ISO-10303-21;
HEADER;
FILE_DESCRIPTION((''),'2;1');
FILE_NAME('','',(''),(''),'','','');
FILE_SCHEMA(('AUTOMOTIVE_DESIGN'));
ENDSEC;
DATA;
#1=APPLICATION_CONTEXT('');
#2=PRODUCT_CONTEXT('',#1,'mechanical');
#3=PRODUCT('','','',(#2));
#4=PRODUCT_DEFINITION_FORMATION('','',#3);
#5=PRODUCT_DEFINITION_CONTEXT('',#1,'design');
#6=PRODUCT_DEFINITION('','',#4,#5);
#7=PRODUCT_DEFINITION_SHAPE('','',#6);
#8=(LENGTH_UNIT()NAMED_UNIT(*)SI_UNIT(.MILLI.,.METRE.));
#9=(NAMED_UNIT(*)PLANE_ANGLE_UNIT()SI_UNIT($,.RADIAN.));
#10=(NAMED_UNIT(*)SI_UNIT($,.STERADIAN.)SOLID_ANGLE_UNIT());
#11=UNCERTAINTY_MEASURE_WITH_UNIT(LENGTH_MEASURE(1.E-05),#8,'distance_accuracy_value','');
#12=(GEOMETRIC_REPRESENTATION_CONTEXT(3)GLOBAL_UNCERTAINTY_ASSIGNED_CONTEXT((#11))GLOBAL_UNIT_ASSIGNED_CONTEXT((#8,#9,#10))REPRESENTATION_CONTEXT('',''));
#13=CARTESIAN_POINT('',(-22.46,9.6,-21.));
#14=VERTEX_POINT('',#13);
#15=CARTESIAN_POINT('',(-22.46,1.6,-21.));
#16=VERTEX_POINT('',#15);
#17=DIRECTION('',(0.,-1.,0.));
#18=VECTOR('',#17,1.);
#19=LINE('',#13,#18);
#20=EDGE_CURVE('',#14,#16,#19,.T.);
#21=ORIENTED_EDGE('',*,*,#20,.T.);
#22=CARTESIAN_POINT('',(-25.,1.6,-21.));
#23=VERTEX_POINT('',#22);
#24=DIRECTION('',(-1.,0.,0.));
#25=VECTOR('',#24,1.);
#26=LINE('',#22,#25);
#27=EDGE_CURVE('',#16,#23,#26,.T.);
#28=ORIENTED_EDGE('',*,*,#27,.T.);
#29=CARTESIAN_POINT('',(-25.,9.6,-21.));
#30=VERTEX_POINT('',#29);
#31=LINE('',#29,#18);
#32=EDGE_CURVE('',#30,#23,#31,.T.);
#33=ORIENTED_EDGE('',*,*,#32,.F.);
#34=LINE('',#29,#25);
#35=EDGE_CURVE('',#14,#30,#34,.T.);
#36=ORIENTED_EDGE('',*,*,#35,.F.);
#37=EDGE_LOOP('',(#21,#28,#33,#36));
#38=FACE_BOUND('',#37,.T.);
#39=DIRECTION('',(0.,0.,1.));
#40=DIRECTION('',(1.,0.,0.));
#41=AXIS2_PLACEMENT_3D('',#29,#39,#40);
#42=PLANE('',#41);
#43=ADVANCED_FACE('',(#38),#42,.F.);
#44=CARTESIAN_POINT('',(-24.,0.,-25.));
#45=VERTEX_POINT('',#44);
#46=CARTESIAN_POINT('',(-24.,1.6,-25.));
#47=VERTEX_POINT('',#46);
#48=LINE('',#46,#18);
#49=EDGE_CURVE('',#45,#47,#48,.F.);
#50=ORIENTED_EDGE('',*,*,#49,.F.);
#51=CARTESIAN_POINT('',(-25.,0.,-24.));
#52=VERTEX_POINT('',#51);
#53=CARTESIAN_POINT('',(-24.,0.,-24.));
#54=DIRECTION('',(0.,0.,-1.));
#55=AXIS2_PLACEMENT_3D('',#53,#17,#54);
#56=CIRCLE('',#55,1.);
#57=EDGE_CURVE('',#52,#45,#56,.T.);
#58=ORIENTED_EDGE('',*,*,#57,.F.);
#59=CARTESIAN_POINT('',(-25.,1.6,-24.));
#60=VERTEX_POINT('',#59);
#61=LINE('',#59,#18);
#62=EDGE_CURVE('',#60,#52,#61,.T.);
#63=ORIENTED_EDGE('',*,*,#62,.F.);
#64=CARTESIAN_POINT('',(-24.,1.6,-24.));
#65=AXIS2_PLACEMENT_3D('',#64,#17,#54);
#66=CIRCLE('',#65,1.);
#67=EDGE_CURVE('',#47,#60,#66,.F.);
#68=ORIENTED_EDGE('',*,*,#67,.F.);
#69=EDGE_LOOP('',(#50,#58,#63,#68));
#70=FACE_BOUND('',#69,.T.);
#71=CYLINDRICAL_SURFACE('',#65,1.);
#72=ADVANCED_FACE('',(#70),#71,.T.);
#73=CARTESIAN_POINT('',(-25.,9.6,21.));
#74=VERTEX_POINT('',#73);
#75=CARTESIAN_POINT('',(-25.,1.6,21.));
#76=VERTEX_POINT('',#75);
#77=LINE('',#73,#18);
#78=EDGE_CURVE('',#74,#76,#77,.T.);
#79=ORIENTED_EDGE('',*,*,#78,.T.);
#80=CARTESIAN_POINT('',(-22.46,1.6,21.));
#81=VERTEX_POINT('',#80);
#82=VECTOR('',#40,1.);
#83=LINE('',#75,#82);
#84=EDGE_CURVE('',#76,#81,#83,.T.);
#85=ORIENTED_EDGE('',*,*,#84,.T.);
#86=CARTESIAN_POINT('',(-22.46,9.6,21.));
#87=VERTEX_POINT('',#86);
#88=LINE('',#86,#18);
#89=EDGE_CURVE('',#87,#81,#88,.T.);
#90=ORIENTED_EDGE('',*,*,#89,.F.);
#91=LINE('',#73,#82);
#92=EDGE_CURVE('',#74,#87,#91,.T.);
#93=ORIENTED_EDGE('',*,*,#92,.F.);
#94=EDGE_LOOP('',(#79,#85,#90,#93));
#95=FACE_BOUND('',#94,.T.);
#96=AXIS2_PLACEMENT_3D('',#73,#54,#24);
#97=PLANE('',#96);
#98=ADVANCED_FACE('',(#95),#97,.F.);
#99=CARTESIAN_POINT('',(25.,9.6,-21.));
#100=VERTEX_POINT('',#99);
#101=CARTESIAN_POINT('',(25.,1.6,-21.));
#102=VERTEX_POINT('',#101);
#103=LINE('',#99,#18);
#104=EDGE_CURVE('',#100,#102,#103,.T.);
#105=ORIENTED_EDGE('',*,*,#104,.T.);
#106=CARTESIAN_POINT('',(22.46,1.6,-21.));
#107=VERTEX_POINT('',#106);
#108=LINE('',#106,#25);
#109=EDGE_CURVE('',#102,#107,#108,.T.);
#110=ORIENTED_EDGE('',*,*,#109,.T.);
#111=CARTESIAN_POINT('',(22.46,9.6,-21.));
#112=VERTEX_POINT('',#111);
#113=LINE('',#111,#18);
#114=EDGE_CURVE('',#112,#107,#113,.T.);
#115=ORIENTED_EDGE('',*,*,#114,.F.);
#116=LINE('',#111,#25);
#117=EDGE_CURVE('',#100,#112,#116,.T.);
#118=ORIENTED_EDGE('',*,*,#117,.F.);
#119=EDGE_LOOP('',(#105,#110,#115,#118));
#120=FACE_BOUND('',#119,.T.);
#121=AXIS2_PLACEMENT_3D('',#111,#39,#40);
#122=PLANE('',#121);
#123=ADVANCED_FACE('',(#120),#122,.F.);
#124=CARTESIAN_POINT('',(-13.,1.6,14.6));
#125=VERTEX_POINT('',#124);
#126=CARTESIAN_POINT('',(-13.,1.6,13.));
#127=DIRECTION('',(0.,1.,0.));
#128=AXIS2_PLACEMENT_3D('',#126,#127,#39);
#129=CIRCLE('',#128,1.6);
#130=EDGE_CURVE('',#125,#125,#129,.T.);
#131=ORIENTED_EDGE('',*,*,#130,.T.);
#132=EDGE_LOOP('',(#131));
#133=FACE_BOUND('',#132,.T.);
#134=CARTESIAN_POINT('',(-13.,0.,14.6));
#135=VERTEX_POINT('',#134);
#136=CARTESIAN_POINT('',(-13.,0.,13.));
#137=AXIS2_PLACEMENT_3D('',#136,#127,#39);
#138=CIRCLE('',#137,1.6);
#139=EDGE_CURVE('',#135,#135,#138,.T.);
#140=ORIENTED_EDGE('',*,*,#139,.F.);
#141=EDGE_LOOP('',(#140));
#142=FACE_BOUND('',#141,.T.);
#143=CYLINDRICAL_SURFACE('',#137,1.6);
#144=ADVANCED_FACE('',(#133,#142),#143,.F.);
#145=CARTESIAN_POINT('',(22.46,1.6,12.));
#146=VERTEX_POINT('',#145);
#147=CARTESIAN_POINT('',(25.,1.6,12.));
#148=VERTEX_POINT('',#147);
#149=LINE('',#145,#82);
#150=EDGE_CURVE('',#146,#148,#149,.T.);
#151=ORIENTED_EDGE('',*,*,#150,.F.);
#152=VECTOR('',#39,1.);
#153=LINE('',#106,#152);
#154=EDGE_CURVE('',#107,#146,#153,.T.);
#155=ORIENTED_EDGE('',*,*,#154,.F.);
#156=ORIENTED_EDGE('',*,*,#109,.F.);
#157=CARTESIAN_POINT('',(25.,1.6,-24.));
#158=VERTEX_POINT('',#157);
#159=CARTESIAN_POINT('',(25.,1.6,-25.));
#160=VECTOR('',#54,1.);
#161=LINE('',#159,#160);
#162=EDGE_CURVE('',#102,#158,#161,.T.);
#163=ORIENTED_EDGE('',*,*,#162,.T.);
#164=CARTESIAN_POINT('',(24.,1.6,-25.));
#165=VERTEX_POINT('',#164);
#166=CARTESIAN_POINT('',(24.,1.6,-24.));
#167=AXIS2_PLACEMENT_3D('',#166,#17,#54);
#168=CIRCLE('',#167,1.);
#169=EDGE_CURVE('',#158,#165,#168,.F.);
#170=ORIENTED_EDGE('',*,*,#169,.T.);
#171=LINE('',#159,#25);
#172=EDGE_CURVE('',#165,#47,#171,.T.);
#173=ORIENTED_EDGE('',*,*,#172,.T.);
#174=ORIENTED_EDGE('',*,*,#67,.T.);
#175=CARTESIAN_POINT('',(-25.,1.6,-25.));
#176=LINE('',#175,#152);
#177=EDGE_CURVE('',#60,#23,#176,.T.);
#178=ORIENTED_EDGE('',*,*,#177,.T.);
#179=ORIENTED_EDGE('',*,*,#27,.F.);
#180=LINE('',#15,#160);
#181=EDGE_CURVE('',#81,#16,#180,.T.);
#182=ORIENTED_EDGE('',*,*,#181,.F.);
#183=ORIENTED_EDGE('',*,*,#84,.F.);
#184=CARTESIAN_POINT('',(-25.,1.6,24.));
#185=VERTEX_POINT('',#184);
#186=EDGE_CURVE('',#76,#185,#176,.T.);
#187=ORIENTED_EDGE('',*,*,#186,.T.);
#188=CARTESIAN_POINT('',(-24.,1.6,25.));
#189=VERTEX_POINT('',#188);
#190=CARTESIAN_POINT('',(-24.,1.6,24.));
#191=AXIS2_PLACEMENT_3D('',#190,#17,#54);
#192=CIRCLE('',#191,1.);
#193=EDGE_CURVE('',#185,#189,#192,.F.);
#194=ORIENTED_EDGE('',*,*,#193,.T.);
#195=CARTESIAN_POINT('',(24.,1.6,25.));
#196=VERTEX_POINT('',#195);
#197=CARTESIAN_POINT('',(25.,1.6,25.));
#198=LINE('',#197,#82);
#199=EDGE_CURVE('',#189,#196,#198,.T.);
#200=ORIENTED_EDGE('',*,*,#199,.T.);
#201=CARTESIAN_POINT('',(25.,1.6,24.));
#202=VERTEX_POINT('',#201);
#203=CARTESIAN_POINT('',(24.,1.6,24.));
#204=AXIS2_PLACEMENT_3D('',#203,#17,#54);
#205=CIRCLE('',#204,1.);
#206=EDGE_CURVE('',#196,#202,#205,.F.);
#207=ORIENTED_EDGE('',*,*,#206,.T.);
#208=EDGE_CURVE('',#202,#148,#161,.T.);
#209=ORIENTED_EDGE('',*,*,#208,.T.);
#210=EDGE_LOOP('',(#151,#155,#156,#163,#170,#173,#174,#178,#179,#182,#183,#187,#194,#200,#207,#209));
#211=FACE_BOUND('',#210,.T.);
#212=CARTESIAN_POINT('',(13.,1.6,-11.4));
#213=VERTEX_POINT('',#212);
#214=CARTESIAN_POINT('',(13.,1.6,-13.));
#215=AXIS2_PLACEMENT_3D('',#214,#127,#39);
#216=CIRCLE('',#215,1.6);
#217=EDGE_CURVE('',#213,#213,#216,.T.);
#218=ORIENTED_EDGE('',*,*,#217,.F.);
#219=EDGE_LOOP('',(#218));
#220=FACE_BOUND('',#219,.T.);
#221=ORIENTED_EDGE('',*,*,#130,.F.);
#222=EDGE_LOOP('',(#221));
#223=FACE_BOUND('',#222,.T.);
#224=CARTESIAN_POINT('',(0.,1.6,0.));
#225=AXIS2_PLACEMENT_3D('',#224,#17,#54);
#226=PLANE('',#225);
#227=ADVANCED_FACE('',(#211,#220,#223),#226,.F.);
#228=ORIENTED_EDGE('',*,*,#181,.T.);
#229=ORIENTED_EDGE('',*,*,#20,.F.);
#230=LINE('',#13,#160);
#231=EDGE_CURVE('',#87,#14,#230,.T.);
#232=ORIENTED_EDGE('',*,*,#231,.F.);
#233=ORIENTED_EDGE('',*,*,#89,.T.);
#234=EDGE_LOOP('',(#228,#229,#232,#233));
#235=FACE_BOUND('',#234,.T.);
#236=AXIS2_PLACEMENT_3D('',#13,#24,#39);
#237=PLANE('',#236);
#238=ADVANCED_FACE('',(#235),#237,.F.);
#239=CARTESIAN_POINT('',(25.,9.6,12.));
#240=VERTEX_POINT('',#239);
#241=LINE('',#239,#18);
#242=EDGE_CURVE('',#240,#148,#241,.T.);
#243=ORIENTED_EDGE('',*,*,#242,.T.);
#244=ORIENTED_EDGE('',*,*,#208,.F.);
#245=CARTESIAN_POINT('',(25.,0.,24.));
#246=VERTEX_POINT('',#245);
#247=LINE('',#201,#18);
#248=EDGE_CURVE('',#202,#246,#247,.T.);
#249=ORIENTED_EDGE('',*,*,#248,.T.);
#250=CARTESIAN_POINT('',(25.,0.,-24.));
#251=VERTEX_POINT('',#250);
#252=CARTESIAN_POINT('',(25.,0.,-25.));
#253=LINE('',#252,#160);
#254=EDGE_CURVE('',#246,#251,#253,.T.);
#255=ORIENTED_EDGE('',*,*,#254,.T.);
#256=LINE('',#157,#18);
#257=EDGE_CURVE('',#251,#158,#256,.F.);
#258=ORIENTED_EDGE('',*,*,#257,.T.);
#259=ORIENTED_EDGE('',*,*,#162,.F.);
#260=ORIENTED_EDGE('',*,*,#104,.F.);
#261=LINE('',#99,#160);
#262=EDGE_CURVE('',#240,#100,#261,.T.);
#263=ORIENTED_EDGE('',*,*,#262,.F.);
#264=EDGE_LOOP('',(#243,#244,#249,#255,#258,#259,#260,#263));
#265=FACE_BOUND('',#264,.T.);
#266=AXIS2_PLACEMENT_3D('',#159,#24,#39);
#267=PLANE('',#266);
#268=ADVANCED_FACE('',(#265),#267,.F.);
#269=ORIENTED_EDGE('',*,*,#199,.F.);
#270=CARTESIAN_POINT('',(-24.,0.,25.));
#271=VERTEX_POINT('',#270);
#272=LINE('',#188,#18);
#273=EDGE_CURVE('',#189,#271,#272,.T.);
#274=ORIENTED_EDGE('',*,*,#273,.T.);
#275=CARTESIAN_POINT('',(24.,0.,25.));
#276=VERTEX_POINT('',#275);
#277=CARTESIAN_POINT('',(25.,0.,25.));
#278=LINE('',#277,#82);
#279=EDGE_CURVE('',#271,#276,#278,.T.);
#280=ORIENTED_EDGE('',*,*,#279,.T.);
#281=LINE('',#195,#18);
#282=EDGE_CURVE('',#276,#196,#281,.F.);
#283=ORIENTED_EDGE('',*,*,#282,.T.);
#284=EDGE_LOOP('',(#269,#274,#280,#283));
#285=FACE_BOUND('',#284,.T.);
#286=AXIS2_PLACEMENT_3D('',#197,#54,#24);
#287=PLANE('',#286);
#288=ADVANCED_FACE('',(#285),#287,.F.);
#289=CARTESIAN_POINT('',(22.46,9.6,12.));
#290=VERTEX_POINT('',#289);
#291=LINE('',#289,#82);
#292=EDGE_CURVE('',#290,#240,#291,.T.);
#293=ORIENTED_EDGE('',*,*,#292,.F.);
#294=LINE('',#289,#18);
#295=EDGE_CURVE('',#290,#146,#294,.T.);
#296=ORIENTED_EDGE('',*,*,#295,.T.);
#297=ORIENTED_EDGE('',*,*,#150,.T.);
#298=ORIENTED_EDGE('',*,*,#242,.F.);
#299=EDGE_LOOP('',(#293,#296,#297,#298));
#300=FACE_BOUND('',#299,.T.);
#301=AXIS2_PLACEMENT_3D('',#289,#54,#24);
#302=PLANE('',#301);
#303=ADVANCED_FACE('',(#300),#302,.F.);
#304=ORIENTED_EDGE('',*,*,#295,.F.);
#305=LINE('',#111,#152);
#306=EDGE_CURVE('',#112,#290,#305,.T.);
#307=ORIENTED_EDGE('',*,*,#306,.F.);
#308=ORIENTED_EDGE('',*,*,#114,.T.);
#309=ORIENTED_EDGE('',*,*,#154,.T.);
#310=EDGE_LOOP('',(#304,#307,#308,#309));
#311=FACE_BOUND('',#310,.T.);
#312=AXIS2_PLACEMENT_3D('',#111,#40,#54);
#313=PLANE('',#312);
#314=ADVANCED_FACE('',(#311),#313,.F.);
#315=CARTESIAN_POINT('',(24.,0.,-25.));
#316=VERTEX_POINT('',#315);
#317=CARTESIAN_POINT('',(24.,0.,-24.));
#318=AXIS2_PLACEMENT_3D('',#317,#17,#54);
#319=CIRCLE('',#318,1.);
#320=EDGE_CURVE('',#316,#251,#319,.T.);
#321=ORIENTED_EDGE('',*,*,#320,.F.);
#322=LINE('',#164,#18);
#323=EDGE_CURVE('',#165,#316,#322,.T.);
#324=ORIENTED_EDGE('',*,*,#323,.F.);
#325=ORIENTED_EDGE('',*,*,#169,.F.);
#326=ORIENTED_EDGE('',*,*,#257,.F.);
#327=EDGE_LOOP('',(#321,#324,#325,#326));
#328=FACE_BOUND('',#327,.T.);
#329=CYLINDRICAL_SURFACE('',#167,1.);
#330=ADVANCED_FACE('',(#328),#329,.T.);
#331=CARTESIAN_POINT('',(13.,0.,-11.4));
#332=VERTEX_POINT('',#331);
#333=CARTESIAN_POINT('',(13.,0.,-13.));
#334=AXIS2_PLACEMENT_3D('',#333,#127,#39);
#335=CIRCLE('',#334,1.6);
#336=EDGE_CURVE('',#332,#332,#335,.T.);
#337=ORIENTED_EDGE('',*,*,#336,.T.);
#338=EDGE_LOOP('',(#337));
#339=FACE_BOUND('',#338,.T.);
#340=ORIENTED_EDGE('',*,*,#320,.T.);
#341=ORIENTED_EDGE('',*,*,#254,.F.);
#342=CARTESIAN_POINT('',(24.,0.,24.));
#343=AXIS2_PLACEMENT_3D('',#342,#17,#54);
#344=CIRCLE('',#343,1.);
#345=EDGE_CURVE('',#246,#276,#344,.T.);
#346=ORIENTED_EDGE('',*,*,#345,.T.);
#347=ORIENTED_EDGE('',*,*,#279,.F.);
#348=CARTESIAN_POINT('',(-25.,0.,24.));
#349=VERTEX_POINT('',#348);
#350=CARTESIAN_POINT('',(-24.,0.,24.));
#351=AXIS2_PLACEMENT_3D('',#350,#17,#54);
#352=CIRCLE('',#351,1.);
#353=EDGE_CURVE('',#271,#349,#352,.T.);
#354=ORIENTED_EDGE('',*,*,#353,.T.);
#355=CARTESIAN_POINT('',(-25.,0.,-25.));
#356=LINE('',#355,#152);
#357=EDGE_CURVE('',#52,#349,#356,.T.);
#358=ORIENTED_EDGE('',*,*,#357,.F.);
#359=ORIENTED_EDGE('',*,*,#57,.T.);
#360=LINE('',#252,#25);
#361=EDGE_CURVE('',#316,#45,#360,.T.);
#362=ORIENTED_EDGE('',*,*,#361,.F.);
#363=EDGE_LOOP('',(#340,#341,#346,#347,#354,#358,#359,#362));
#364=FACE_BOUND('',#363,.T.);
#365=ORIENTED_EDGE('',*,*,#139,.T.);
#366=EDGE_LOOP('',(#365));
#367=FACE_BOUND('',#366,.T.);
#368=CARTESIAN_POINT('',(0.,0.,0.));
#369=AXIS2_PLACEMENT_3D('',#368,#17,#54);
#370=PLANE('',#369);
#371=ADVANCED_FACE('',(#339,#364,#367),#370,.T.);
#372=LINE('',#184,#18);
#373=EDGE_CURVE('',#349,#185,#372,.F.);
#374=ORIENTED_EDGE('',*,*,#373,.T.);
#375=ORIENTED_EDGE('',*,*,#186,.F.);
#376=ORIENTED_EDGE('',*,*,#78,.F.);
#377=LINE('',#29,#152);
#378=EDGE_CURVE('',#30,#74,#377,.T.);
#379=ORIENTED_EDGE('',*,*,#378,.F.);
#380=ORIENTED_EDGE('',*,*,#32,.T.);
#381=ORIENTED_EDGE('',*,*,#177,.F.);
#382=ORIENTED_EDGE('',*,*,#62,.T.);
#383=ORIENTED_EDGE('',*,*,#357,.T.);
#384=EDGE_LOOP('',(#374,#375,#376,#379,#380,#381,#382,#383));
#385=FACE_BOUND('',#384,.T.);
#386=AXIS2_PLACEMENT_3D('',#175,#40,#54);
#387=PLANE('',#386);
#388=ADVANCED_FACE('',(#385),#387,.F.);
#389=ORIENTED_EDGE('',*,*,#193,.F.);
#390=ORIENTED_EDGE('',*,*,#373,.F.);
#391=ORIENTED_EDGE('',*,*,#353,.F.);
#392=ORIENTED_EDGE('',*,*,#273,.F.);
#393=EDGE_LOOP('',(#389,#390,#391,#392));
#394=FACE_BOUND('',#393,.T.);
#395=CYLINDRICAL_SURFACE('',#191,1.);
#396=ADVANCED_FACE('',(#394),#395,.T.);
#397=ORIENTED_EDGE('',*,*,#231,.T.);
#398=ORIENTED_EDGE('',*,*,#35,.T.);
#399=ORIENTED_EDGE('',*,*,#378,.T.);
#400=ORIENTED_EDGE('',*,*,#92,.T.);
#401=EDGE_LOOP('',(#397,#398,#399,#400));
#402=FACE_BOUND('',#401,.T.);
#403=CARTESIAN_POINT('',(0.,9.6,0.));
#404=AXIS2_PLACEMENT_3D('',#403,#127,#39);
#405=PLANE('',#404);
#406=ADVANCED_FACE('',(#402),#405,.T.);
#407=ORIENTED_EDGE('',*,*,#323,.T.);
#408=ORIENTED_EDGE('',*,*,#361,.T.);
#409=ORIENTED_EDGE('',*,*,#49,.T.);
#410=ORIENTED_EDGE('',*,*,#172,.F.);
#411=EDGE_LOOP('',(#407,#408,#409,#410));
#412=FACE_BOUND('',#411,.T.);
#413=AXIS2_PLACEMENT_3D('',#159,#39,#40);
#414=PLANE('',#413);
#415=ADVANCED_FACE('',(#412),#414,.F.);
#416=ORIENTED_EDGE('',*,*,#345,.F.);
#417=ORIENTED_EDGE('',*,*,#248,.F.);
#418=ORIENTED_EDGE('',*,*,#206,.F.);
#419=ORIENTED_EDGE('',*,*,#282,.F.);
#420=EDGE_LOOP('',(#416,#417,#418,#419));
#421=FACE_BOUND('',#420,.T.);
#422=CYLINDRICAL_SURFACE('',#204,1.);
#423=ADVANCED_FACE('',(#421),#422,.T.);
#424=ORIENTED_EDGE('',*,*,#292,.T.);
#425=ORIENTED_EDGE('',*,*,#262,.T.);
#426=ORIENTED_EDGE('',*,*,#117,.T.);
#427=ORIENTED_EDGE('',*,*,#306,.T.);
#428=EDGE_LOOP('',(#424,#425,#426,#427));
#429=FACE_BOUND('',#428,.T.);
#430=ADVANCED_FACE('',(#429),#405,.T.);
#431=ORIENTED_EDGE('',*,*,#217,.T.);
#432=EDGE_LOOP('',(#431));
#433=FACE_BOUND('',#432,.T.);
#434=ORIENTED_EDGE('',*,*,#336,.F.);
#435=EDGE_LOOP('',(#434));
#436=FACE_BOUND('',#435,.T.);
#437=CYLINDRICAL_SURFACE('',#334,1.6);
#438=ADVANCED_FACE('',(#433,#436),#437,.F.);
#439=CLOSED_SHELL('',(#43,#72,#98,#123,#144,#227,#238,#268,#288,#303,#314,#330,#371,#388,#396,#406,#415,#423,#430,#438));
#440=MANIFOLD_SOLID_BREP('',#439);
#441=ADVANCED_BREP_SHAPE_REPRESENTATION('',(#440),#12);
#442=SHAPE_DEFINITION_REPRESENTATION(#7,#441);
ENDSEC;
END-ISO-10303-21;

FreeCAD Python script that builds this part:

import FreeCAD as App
import Part
import Sketcher
from FreeCAD import Vector
Q = App.Units.Quantity


def edges_at(feature, points):
    """Names of the edges that pass closest to the given points."""
    edges = feature.Shape.Edges
    near = lambda p: min(range(len(edges)), key=lambda i: edges[i].distToShape(Part.Vertex(*p))[0])
    return sorted({f"Edge{near(p) + 1}" for p in points})


def add_polygon(sketch, points):
    """Adds a closed chain of lines whose ends are joined by coincident constraints."""
    first, n = sketch.GeometryCount, len(points)
    for a, b in zip(points, points[1:] + points[:1]):
        sketch.addGeometry(Part.LineSegment(App.Vector(*a, 0), App.Vector(*b, 0)), False)
    for i in range(n):
        sketch.addConstraint(Sketcher.Constraint("Coincident", first + i, 2, first + (i + 1) % n, 1))

doc = App.newDocument("Part")
params = doc.addObject("Spreadsheet::Sheet", "Params")
for row, (alias, value) in enumerate([
    ("sketch1_width", "50 mm"),
    ("pad1_length", "1.6 mm"),
    ("sketch2_diameter", "3.2 mm"),
    ("fillet_radius", "1 mm"),
    ("sketch3_height", "42 mm"),
    ("sketch3_height2", "33 mm"),
    ("sketch3_width", "2.54 mm"),
    ("pad2_length", "8 mm"),
], start=1):
    params.set(f"A{row}", alias)
    params.set(f"B{row}", "=" + value)
    params.setAlias(f"B{row}", alias)

body = doc.addObject("PartDesign::Body", "Body")

# Sketch on XZ plane
sketch1 = doc.addObject("Sketcher::SketchObject", "Sketch")
body.addObject(sketch1)
sketch1.AttachmentSupport = (doc.XZ_Plane, [""])
sketch1.MapMode = "FlatFace"
add_polygon(sketch1, [(-25, -25), (-25, 25), (25, 25), (25, -25)])  # lines 0-3
sketch1.addConstraint(Sketcher.Constraint("Vertical", 0))
sketch1.addConstraint(Sketcher.Constraint("Horizontal", 1))
sketch1.addConstraint(Sketcher.Constraint("Vertical", 2))
sketch1.addConstraint(Sketcher.Constraint("Horizontal", 3))
sketch1.addConstraint(Sketcher.Constraint("Symmetric", 0, 2, 2, 2, -1, 1))
sketch1.addConstraint(Sketcher.Constraint("Equal", 3, 0))
sketch1.addConstraint(Sketcher.Constraint("DistanceX", 1, 1, 1, 2, Q("50 mm")))
sketch1.setExpression("Constraints[10]", "Params.sketch1_width")
pad1 = doc.addObject("PartDesign::Pad", "Pad")
body.addObject(pad1)
pad1.Profile = sketch1
pad1.setExpression("Length", "Params.pad1_length")
pad1.Reversed = True

# Sketch on XZ plane
sketch2 = doc.addObject("Sketcher::SketchObject", "Sketch001")
body.addObject(sketch2)
sketch2.AttachmentSupport = (doc.XZ_Plane, [""])
sketch2.MapMode = "FlatFace"
sketch2.AttachmentOffset = App.Placement(Vector(0, 0, -1.6), App.Rotation())
sketch2.addGeometry(Part.Circle(Vector(-13, 13, 0), Vector(0, 0, 1), 1.6), False)
sketch2.addGeometry(Part.Circle(Vector(13, -13, 0), Vector(0, 0, 1), 1.6), False)
sketch2.addConstraint(Sketcher.Constraint("Equal", 0, 1))
sketch2.addConstraint(Sketcher.Constraint("Symmetric", 0, 3, 1, 3, -1, 1))
sketch2.addConstraint(Sketcher.Constraint("Diameter", 0, Q("3.2 mm")))
sketch2.addConstraint(Sketcher.Constraint("DistanceX", 0, 3, -1, 1, Q("13 mm")))
sketch2.addConstraint(Sketcher.Constraint("DistanceY", -1, 1, 0, 3, Q("13 mm")))
sketch2.setExpression("Constraints[2]", "Params.sketch2_diameter")
pocket1 = doc.addObject("PartDesign::Pocket", "Pocket")
body.addObject(pocket1)
pocket1.Profile = sketch2
pocket1.Type = "ThroughAll"
pocket1.Reversed = True
doc.recompute()

fillet = doc.addObject("PartDesign::Fillet", "Fillet")
body.addObject(fillet)
fillet.Base = (pocket1, edges_at(pocket1, [
    (-25, 0.8, -25),
    (25, 0.8, -25),
    (25, 0.8, 25),
    (-25, 0.8, 25),
]))
fillet.setExpression("Radius", "Params.fillet_radius")

# Sketch on XZ plane
sketch3 = doc.addObject("Sketcher::SketchObject", "Sketch002")
body.addObject(sketch3)
sketch3.AttachmentSupport = (doc.XZ_Plane, [""])
sketch3.MapMode = "FlatFace"
sketch3.AttachmentOffset = App.Placement(Vector(0, 0, -1.6), App.Rotation())
add_polygon(sketch3, [(-25, -21), (-25, 21), (-22.5, 21), (-22.5, -21)])  # lines 0-3
add_polygon(sketch3, [(22.5, -21), (22.5, 12), (25, 12), (25, -21)])  # lines 4-7
sketch3.addConstraint(Sketcher.Constraint("Vertical", 0))
sketch3.addConstraint(Sketcher.Constraint("Horizontal", 1))
sketch3.addConstraint(Sketcher.Constraint("Vertical", 2))
sketch3.addConstraint(Sketcher.Constraint("Horizontal", 3))
sketch3.addConstraint(Sketcher.Constraint("Vertical", 4))
sketch3.addConstraint(Sketcher.Constraint("Horizontal", 5))
sketch3.addConstraint(Sketcher.Constraint("Vertical", 6))
sketch3.addConstraint(Sketcher.Constraint("Horizontal", 7))
sketch3.addConstraint(Sketcher.Constraint("Symmetric", 0, 2, 6, 2, -1, 1))
sketch3.addConstraint(Sketcher.Constraint("Symmetric", 2, 2, 7, 2, -2))
sketch3.addConstraint(Sketcher.Constraint("DistanceY", 0, 1, 0, 2, Q("42 mm")))
sketch3.addConstraint(Sketcher.Constraint("DistanceY", 4, 1, 4, 2, Q("33 mm")))
sketch3.addConstraint(Sketcher.Constraint("DistanceX", 0, 2, -1, 1, Q("25 mm")))
sketch3.addConstraint(Sketcher.Constraint("DistanceX", 1, 1, 1, 2, Q("2.54 mm")))
sketch3.setExpression("Constraints[18]", "Params.sketch3_height")
sketch3.setExpression("Constraints[19]", "Params.sketch3_height2")
sketch3.setExpression("Constraints[21]", "Params.sketch3_width")
pad2 = doc.addObject("PartDesign::Pad", "Pad001")
body.addObject(pad2)
pad2.Profile = sketch3
pad2.setExpression("Length", "Params.pad2_length")
pad2.Reversed = True

doc.recompute()
